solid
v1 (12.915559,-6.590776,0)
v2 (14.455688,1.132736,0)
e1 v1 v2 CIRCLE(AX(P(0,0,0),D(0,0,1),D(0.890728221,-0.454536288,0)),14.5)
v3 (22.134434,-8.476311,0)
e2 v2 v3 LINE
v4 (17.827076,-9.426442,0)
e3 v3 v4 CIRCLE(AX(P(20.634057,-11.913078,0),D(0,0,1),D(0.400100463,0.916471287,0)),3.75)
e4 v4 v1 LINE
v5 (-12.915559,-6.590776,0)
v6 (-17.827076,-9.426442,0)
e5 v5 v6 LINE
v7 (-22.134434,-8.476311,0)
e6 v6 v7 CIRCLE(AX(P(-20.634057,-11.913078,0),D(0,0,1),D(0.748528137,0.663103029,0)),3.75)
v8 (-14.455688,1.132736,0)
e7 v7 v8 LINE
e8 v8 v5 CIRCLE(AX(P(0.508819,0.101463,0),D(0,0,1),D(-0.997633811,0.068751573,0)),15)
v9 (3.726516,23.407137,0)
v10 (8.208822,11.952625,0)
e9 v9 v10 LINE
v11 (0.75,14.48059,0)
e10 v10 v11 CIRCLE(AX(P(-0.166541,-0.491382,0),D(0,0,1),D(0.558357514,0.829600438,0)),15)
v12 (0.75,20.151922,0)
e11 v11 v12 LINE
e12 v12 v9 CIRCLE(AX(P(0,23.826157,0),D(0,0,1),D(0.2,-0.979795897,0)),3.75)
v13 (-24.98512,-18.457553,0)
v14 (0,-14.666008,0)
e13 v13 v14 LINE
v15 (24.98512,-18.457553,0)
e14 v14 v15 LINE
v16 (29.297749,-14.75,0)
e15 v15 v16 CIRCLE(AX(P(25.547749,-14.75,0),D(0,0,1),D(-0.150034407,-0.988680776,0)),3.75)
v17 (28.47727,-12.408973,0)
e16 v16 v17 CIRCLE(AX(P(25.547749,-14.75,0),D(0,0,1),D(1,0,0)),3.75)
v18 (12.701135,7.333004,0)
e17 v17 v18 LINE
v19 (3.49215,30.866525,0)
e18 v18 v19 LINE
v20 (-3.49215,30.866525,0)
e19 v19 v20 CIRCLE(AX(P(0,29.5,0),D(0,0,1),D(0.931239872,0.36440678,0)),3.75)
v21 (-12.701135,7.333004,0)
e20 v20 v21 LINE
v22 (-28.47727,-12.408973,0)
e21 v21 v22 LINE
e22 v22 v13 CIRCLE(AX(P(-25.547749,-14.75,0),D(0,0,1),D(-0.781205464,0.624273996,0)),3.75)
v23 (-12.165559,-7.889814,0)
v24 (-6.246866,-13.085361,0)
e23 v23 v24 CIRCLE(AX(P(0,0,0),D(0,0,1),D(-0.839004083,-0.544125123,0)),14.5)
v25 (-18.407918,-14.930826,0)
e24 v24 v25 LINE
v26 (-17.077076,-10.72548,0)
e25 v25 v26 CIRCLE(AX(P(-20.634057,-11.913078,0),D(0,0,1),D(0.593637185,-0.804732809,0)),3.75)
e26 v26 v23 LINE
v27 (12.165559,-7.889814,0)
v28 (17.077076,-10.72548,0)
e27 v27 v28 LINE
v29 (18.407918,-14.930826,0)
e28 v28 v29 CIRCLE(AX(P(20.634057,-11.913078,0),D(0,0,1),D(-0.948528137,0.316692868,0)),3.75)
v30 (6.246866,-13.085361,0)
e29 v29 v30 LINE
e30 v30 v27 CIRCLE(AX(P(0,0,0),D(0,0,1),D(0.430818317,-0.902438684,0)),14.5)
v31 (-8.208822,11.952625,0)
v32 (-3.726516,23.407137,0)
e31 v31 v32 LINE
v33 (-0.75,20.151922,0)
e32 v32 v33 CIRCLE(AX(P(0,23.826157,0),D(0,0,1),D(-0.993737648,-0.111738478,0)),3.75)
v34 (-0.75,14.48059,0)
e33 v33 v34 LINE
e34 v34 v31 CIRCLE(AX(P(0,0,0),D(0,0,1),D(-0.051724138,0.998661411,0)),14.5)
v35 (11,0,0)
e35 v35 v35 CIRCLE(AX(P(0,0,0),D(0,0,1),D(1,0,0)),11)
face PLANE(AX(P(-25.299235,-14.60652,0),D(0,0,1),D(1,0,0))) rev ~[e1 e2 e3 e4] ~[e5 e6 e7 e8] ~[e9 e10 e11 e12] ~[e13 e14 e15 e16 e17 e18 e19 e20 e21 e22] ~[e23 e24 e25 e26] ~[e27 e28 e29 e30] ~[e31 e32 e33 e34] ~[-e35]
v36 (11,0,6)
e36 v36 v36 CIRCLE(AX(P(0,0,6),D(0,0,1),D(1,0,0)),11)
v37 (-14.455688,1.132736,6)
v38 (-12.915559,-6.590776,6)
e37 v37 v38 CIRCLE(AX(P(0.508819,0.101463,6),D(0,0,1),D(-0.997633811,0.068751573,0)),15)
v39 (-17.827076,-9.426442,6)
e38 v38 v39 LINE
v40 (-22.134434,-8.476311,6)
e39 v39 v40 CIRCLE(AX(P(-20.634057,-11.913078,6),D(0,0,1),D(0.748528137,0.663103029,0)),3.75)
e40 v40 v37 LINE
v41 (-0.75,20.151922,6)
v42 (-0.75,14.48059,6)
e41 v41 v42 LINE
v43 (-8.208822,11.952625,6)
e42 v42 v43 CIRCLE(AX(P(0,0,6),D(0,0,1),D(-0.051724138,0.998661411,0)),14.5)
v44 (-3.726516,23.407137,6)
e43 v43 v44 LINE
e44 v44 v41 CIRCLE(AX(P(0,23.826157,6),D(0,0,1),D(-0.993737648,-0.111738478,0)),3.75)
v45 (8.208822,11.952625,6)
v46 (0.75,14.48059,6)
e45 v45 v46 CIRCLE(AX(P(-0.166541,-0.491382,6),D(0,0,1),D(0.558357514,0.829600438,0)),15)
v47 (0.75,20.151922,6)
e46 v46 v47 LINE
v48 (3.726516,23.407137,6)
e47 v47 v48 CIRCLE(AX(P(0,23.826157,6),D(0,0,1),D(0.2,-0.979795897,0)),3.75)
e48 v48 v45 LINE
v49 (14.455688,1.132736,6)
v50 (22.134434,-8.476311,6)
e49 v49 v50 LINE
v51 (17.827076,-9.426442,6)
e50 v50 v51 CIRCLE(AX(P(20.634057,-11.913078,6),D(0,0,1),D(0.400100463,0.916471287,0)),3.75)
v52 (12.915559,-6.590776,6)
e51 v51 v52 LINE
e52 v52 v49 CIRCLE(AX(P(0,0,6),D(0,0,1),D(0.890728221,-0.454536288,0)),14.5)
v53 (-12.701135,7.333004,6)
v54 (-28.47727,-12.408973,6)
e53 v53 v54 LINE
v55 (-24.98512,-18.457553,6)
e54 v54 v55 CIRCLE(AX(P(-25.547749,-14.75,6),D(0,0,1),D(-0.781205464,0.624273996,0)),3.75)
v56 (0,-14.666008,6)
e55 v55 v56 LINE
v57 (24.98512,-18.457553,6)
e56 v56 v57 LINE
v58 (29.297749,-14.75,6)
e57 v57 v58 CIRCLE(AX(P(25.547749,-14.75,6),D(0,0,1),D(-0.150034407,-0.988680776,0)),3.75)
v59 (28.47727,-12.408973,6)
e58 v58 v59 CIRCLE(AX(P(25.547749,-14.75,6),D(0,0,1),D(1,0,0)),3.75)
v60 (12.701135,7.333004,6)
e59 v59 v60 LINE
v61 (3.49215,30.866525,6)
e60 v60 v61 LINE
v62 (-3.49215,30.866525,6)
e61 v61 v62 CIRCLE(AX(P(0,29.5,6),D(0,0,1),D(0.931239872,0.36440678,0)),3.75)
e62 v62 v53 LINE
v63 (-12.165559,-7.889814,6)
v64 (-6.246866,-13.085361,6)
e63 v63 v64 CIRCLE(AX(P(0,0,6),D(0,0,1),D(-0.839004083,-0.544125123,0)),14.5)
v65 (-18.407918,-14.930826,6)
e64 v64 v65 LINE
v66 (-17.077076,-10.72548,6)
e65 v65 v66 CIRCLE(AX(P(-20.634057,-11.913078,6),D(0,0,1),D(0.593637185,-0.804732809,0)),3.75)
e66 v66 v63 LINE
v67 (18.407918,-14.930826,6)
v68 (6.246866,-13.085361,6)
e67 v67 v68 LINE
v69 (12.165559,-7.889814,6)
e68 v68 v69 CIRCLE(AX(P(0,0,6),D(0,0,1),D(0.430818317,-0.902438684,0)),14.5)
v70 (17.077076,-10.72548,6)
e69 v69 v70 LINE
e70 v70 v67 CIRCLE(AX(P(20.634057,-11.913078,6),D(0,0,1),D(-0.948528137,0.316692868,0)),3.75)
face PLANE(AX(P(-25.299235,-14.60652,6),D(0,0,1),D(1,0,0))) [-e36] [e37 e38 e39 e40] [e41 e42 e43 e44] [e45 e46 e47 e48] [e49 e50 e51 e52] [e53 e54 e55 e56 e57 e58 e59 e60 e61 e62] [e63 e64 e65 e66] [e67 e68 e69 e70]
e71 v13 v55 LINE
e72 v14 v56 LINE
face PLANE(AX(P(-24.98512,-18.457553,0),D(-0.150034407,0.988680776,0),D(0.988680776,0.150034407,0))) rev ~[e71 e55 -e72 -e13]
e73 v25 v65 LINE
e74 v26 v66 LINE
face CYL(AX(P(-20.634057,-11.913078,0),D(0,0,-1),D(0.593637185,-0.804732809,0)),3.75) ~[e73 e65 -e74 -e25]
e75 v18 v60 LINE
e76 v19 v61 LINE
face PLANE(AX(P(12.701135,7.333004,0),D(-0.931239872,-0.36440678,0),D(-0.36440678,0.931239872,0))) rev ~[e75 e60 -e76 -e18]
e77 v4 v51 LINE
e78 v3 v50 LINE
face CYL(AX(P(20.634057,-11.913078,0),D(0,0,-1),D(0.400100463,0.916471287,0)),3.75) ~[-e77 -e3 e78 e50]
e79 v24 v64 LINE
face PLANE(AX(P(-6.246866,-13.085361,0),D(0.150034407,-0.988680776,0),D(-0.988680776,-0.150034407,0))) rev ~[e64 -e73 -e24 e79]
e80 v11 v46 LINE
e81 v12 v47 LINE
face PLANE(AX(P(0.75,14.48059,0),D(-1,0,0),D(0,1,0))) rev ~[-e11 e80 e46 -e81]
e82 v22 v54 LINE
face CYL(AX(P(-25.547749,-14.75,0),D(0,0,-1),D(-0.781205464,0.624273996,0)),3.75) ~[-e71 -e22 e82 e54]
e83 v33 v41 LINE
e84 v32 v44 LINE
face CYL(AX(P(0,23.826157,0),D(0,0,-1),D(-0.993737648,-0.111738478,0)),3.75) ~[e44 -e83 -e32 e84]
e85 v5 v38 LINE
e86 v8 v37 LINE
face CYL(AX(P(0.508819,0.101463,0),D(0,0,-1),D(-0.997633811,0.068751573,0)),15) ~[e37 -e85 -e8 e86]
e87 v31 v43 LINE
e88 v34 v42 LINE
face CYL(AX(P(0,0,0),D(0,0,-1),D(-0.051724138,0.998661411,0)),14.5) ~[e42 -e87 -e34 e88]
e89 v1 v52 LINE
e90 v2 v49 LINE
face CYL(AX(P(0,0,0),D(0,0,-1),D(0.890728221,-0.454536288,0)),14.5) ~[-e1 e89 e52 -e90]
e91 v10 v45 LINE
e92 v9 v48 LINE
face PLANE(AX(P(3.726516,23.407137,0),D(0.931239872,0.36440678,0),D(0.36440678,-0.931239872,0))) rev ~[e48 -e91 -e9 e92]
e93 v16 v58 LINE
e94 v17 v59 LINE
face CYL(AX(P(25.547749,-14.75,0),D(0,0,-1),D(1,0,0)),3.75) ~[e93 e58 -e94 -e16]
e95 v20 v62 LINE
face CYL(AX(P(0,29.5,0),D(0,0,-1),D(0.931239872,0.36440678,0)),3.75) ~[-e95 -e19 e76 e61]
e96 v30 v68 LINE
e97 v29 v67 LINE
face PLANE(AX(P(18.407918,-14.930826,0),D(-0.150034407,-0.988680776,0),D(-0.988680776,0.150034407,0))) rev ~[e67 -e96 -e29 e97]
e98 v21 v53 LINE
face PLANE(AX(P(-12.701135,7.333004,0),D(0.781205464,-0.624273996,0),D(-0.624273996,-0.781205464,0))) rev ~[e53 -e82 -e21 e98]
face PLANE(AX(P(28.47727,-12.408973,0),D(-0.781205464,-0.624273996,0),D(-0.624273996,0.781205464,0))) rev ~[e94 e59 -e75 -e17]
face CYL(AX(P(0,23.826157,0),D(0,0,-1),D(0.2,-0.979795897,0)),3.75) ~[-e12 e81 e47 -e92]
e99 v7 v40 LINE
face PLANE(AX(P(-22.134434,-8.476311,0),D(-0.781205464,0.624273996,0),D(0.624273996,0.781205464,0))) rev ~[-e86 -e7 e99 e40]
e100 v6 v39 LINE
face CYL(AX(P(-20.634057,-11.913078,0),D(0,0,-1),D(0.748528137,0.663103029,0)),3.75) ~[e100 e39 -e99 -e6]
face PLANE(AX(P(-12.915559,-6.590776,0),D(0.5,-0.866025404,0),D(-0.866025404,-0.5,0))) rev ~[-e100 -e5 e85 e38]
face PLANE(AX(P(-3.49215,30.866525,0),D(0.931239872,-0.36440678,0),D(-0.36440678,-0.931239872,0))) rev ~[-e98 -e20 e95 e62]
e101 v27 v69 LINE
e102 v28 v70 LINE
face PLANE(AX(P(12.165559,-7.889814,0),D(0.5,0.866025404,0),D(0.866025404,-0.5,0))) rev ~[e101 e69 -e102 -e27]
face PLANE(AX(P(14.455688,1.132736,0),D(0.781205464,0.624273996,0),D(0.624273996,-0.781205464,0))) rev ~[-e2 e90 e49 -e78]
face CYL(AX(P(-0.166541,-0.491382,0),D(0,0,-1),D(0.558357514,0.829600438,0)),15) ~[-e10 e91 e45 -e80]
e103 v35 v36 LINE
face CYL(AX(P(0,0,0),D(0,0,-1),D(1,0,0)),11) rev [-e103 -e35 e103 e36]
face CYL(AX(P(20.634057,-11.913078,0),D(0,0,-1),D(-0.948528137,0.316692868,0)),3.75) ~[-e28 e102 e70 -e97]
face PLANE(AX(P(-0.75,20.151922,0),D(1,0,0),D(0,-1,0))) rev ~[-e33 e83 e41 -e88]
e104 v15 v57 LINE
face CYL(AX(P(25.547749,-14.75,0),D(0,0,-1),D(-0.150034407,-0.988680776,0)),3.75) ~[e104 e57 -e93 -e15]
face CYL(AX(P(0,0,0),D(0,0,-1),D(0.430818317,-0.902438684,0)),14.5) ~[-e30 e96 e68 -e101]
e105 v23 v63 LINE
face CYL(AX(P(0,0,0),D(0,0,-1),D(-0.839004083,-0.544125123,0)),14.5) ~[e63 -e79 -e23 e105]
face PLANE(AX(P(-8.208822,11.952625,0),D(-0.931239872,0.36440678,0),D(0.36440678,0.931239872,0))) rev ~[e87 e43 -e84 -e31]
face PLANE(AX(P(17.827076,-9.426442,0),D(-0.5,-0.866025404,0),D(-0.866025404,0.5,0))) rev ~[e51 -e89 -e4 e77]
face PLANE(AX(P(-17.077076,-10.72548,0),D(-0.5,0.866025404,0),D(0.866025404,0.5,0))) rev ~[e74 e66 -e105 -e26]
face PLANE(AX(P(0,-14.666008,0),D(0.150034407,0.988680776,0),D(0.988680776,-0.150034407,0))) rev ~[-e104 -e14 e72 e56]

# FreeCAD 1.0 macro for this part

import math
import FreeCAD as App
import Part
import Sketcher

V = App.Vector
Q = App.Units.Quantity

doc = App.newDocument("Part")
body = doc.addObject("PartDesign::Body", "Body")

# Sketch on XY plane
sketch1 = body.newObject("Sketcher::SketchObject", "Sketch")
sketch1.AttachmentSupport = (doc.getObject("XY_Plane"), [""])
sketch1.MapMode = "FlatFace"
sketch1.addGeometry([
    Part.ArcOfCircle(Part.Circle(V(-25.547749, -14.75, 0), V(0, 0, 1), 3.75), math.radians(141.371079), math.radians(278.628921)),  # 0
    Part.LineSegment(V(-24.98512, -18.457553, 0), V(0, -14.666008, 0)),  # 1
    Part.LineSegment(V(0, -14.666008, 0), V(24.98512, -18.457553, 0)),  # 2
    Part.ArcOfCircle(Part.Circle(V(25.547749, -14.75, 0), V(0, 0, 1), 3.75), math.radians(-98.628921), math.radians(0)),  # 3
    Part.ArcOfCircle(Part.Circle(V(25.547749, -14.75, 0), V(0, 0, 1), 3.75), math.radians(0), math.radians(38.628921)),  # 4
    Part.LineSegment(V(28.47727, -12.408973, 0), V(12.701135, 7.333004, 0)),  # 5
    Part.LineSegment(V(12.701135, 7.333004, 0), V(3.49215, 30.866525, 0)),  # 6
    Part.ArcOfCircle(Part.Circle(V(0, 29.5, 0), V(0, 0, 1), 3.75), math.radians(21.371079), math.radians(158.628921)),  # 7
    Part.LineSegment(V(-3.49215, 30.866525, 0), V(-12.701135, 7.333004, 0)),  # 8
    Part.LineSegment(V(-12.701135, 7.333004, 0), V(-28.47727, -12.408973, 0)),  # 9
    Part.ArcOfCircle(Part.Circle(V(-20.634057, -11.913078, 0), V(0, 0, 1), 3.75), math.radians(-53.584459), math.radians(18.463041)),  # 10
    Part.LineSegment(V(-17.077076, -10.72548, 0), V(-12.165559, -7.889814, 0)),  # 11
    Part.ArcOfCircle(Part.Circle(V(0, 0, 0), V(0, 0, 1), 14.5), math.radians(-147.035102), math.radians(-115.519504)),  # 12
    Part.LineSegment(V(-6.246866, -13.085361, 0), V(-18.407918, -14.930826, 0)),  # 13
    Part.ArcOfCircle(Part.Circle(V(-20.634057, -11.913078, 0), V(0, 0, 1), 3.75), math.radians(41.536959), math.radians(113.584459)),  # 14
    Part.LineSegment(V(-22.134434, -8.476311, 0), V(-14.455688, 1.132736, 0)),  # 15
    Part.ArcOfCircle(Part.Circle(V(0.508819, 0.101463, 0), V(0, 0, 1), 15), math.radians(176.057715), math.radians(206.496891)),  # 16
    Part.LineSegment(V(-12.915559, -6.590776, 0), V(-17.827076, -9.426442, 0)),  # 17
    Part.Circle(V(0, 0, 0), V(0, 0, 1), 11),  # 18
    Part.LineSegment(V(12.165559, -7.889814, 0), V(17.077076, -10.72548, 0)),  # 19
    Part.ArcOfCircle(Part.Circle(V(20.634057, -11.913078, 0), V(0, 0, 1), 3.75), math.radians(161.536959), math.radians(233.584459)),  # 20
    Part.LineSegment(V(18.407918, -14.930826, 0), V(6.246866, -13.085361, 0)),  # 21
    Part.ArcOfCircle(Part.Circle(V(0, 0, 0), V(0, 0, 1), 14.5), math.radians(-64.480496), math.radians(-32.964898)),  # 22
    Part.LineSegment(V(14.455688, 1.132736, 0), V(22.134434, -8.476311, 0)),  # 23
    Part.ArcOfCircle(Part.Circle(V(20.634057, -11.913078, 0), V(0, 0, 1), 3.75), math.radians(66.415541), math.radians(138.463041)),  # 24
    Part.LineSegment(V(17.827076, -9.426442, 0), V(12.915559, -6.590776, 0)),  # 25
    Part.ArcOfCircle(Part.Circle(V(0, 0, 0), V(0, 0, 1), 14.5), math.radians(-27.035102), math.radians(4.480496)),  # 26
    Part.LineSegment(V(-0.75, 20.151922, 0), V(-0.75, 14.48059, 0)),  # 27
    Part.ArcOfCircle(Part.Circle(V(0, 0, 0), V(0, 0, 1), 14.5), math.radians(92.964898), math.radians(124.480496)),  # 28
    Part.LineSegment(V(-8.208822, 11.952625, 0), V(-3.726516, 23.407137, 0)),  # 29
    Part.ArcOfCircle(Part.Circle(V(0, 23.826157, 0), V(0, 0, 1), 3.75), math.radians(-173.584459), math.radians(-101.536959)),  # 30
    Part.LineSegment(V(0.75, 14.48059, 0), V(0.75, 20.151922, 0)),  # 31
    Part.ArcOfCircle(Part.Circle(V(0, 23.826157, 0), V(0, 0, 1), 3.75), math.radians(-78.463041), math.radians(-6.415541)),  # 32
    Part.LineSegment(V(3.726516, 23.407137, 0), V(8.208822, 11.952625, 0)),  # 33
    Part.ArcOfCircle(Part.Circle(V(-0.166541, -0.491382, 0), V(0, 0, 1), 15), math.radians(56.057715), math.radians(86.496891)),  # 34
], False)
sketch1.addConstraint([
    Sketcher.Constraint("Coincident", 0, 2, 1, 1),
    Sketcher.Constraint("Coincident", 1, 2, 2, 1),
    Sketcher.Constraint("Coincident", 2, 2, 3, 1),
    Sketcher.Constraint("Coincident", 3, 2, 4, 1),
    Sketcher.Constraint("Coincident", 4, 2, 5, 1),
    Sketcher.Constraint("Coincident", 5, 2, 6, 1),
    Sketcher.Constraint("Coincident", 6, 2, 7, 1),
    Sketcher.Constraint("Coincident", 7, 2, 8, 1),
    Sketcher.Constraint("Coincident", 8, 2, 9, 1),
    Sketcher.Constraint("Coincident", 9, 2, 0, 1),
    Sketcher.Constraint("Coincident", 10, 2, 11, 1),
    Sketcher.Constraint("Coincident", 11, 2, 12, 1),
    Sketcher.Constraint("Coincident", 12, 2, 13, 1),
    Sketcher.Constraint("Coincident", 13, 2, 10, 1),
    Sketcher.Constraint("Coincident", 14, 2, 15, 1),
    Sketcher.Constraint("Coincident", 15, 2, 16, 1),
    Sketcher.Constraint("Coincident", 16, 2, 17, 1),
    Sketcher.Constraint("Coincident", 17, 2, 14, 1),
    Sketcher.Constraint("Coincident", 19, 2, 20, 1),
    Sketcher.Constraint("Coincident", 20, 2, 21, 1),
    Sketcher.Constraint("Coincident", 21, 2, 22, 1),
    Sketcher.Constraint("Coincident", 22, 2, 19, 1),
    Sketcher.Constraint("Coincident", 23, 2, 24, 1),
    Sketcher.Constraint("Coincident", 24, 2, 25, 1),
    Sketcher.Constraint("Coincident", 25, 2, 26, 1),
    Sketcher.Constraint("Coincident", 26, 2, 23, 1),
    Sketcher.Constraint("Coincident", 27, 2, 28, 1),
    Sketcher.Constraint("Coincident", 28, 2, 29, 1),
    Sketcher.Constraint("Coincident", 29, 2, 30, 1),
    Sketcher.Constraint("Coincident", 30, 2, 27, 1),
    Sketcher.Constraint("Coincident", 31, 2, 32, 1),
    Sketcher.Constraint("Coincident", 32, 2, 33, 1),
    Sketcher.Constraint("Coincident", 33, 2, 34, 1),
    Sketcher.Constraint("Coincident", 34, 2, 31, 1),
    Sketcher.Constraint("Vertical", 27),
    Sketcher.Constraint("Vertical", 31),
    Sketcher.Constraint("Coincident", 12, 3, -1, 1),
    Sketcher.Constraint("Coincident", 18, 3, -1, 1),
    Sketcher.Constraint("Coincident", 22, 3, -1, 1),
    Sketcher.Constraint("Coincident", 26, 3, -1, 1),
    Sketcher.Constraint("Coincident", 28, 3, -1, 1),
    Sketcher.Constraint("Coincident", 4, 3, 3, 3),
    Sketcher.Constraint("Coincident", 14, 3, 10, 3),
    Sketcher.Constraint("Coincident", 24, 3, 20, 3),
    Sketcher.Constraint("Coincident", 32, 3, 30, 3),
    Sketcher.Constraint("PointOnObject", 7, 3, -2),
    Sketcher.Constraint("PointOnObject", 30, 3, -2),
    Sketcher.Constraint("PointOnObject", 1, 2, -2),
    Sketcher.Constraint("Diameter", 18, Q("22 mm")),
    Sketcher.Constraint("Radius", 16, Q("15 mm")),
    Sketcher.Constraint("Radius", 34, Q("15 mm")),
    Sketcher.Constraint("Radius", 12, Q("14.5 mm")),
    Sketcher.Constraint("Radius", 22, Q("14.5 mm")),
    Sketcher.Constraint("Radius", 26, Q("14.5 mm")),
    Sketcher.Constraint("Radius", 28, Q("14.5 mm")),
    Sketcher.Constraint("Radius", 0, Q("3.75 mm")),
    Sketcher.Constraint("Radius", 3, Q("3.75 mm")),
    Sketcher.Constraint("Radius", 7, Q("3.75 mm")),
    Sketcher.Constraint("Radius", 10, Q("3.75 mm")),
    Sketcher.Constraint("Radius", 14, Q("3.75 mm")),
    Sketcher.Constraint("Radius", 20, Q("3.75 mm")),
    Sketcher.Constraint("Radius", 24, Q("3.75 mm")),
    Sketcher.Constraint("Radius", 30, Q("3.75 mm")),
    Sketcher.Constraint("Radius", 32, Q("3.75 mm")),
    Sketcher.Constraint("DistanceY", -1, 1, 7, 3, Q("29.5 mm")),
    Sketcher.Constraint("DistanceX", 30, 2, 31, 2, Q("1.5 mm")),
    Sketcher.Constraint("DistanceY", 0, 3, -1, 1, Q("14.75 mm")),
    Sketcher.Constraint("DistanceY", 3, 3, -1, 1, Q("14.75 mm")),
    Sketcher.Constraint("DistanceY", 3, 2, -1, 1, Q("14.75 mm")),
    Sketcher.Constraint("DistanceX", 27, 2, -1, 1, Q("0.75 mm")),
    Sketcher.Constraint("DistanceX", 16, 2, 11, 2, Q("0.75 mm")),
    Sketcher.Constraint("DistanceX", 17, 2, 10, 2, Q("0.75 mm")),
    Sketcher.Constraint("DistanceX", 19, 2, 24, 2, Q("0.75 mm")),
    Sketcher.Constraint("DistanceX", 22, 2, 25, 2, Q("0.75 mm")),
    Sketcher.Constraint("DistanceY", 27, 2, 27, 1, Q("5.671332 mm")),
    Sketcher.Constraint("DistanceY", 31, 1, 31, 2, Q("5.671332 mm")),
    Sketcher.Constraint("DistanceX", 0, 3, 3, 3, Q("51.095499 mm")),
    Sketcher.Constraint("DistanceX", 7, 2, 6, 2, Q("6.984299 mm")),
    Sketcher.Constraint("DistanceY", 10, 3, 10, 2, Q("1.187598 mm")),
    Sketcher.Constraint("DistanceY", 20, 3, 19, 2, Q("1.187598 mm")),
    Sketcher.Constraint("Distance", 1, Q("25.27117 mm")),
    Sketcher.Constraint("Distance", 2, Q("25.27117 mm")),
    Sketcher.Constraint("Distance", 5, Q("25.27117 mm")),
    Sketcher.Constraint("Distance", 6, Q("25.27117 mm")),
    Sketcher.Constraint("Distance", 8, Q("25.27117 mm")),
    Sketcher.Constraint("Distance", 9, Q("25.27117 mm")),
    Sketcher.Constraint("Distance", 11, Q("5.671332 mm")),
    Sketcher.Constraint("Distance", 13, Q("12.300282 mm")),
    Sketcher.Constraint("Distance", 15, Q("12.300282 mm")),
    Sketcher.Constraint("Distance", 17, Q("5.671332 mm")),
    Sketcher.Constraint("Distance", 19, Q("5.671332 mm")),
    Sketcher.Constraint("Distance", 21, Q("12.300282 mm")),
    Sketcher.Constraint("Distance", 23, Q("12.300282 mm")),
    Sketcher.Constraint("Distance", 25, Q("5.671332 mm")),
    Sketcher.Constraint("Distance", 29, Q("12.300282 mm")),
    Sketcher.Constraint("Distance", 33, Q("12.300282 mm")),
    Sketcher.Constraint("DistanceX", 0, 3, -1, 1, Q("25.547749 mm")),
    Sketcher.Constraint("DistanceY", 10, 3, -1, 1, Q("11.913078 mm")),
    Sketcher.Constraint("DistanceX", -1, 1, 16, 3, Q("0.508819 mm")),
    Sketcher.Constraint("DistanceY", 20, 3, -1, 1, Q("11.913078 mm")),
    Sketcher.Constraint("DistanceX", 34, 3, -1, 1, Q("0.166541 mm")),
    Sketcher.Constraint("DistanceX", 0, 2, -1, 1, Q("24.98512 mm")),
    Sketcher.Constraint("DistanceX", -1, 1, 4, 2, Q("28.47727 mm")),
    Sketcher.Constraint("DistanceX", -1, 1, 6, 2, Q("3.49215 mm")),
    Sketcher.Constraint("DistanceX", 9, 2, -1, 1, Q("28.47727 mm")),
    Sketcher.Constraint("DistanceX", 11, 2, -1, 1, Q("12.165559 mm")),
    Sketcher.Constraint("DistanceY", 12, 2, -1, 1, Q("13.085361 mm")),
    Sketcher.Constraint("DistanceY", 14, 2, -1, 1, Q("8.476311 mm")),
    Sketcher.Constraint("DistanceY", 21, 2, -1, 1, Q("13.085361 mm")),
    Sketcher.Constraint("DistanceY", 23, 2, -1, 1, Q("8.476311 mm")),
    Sketcher.Constraint("DistanceY", 8, 2, 28, 2, Q("4.619621 mm")),
    Sketcher.Constraint("DistanceY", 32, 2, 30, 3, Q("0.419019 mm")),
])
pad1 = body.newObject("PartDesign::Pad", "Pad")
pad1.Profile = sketch1
pad1.Length = 6

doc.recompute()
